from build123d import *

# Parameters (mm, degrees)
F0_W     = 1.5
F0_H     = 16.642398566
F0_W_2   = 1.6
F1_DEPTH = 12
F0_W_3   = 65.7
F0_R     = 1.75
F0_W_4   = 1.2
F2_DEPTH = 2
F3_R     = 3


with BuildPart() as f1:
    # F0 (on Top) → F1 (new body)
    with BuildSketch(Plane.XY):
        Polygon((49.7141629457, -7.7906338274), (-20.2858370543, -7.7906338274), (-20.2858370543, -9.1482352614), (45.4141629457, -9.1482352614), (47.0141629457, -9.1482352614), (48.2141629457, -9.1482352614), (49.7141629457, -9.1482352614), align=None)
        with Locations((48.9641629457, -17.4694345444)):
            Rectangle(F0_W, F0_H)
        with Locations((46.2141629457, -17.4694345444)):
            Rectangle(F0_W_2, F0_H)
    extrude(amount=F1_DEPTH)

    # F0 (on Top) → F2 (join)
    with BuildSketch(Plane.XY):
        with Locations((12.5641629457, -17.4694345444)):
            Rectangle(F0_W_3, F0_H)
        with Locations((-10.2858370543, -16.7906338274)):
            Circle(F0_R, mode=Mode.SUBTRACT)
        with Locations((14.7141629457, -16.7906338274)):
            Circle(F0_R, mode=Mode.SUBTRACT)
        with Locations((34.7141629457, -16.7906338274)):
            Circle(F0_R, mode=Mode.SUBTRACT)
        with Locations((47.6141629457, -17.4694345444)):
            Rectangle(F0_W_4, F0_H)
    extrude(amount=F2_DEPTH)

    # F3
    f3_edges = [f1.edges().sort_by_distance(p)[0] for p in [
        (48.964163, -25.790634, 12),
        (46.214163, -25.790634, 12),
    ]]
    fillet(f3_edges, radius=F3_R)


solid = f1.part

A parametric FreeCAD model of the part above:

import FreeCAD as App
import Part
import Sketcher
from FreeCAD import Vector


def edges_at(feature, points):
    """Names of the edges that pass closest to the given points."""
    edges = feature.Shape.Edges
    near = lambda p: min(range(len(edges)), key=lambda i: edges[i].distToShape(Part.Vertex(*p))[0])
    return sorted({f"Edge{near(p) + 1}" for p in points})


def add_polygon(sketch, points):
    """Adds a closed chain of lines whose ends are joined by coincident constraints."""
    first, n = sketch.GeometryCount, len(points)
    for a, b in zip(points, points[1:] + points[:1]):
        sketch.addGeometry(Part.LineSegment(App.Vector(*a, 0), App.Vector(*b, 0)), False)
    for i in range(n):
        sketch.addConstraint(Sketcher.Constraint("Coincident", first + i, 2, first + (i + 1) % n, 1))

doc = App.newDocument("Part")
body = doc.addObject("PartDesign::Body", "Body")

# Sketch on XY plane
sketch1 = body.newObject("Sketcher::SketchObject", "Sketch")
sketch1.AttachmentSupport = (doc.getObject("XY_Plane"), [""])
sketch1.MapMode = "FlatFace"
add_polygon(sketch1, [(49.714163, -7.790634), (-20.285837, -7.790634), (-20.285837, -9.148235), (45.414163, -9.148235), (45.414163, -25.790634), (47.014163, -25.790634), (47.014163, -9.148235), (48.214163, -9.148235), (48.214163, -25.790634), (49.714163, -25.790634)])  # lines 0-9
sketch1.addConstraint([
    Sketcher.Constraint("Horizontal", 0),
    Sketcher.Constraint("Vertical", 1),
    Sketcher.Constraint("Horizontal", 2),
    Sketcher.Constraint("Vertical", 3),
    Sketcher.Constraint("Horizontal", 4),
    Sketcher.Constraint("Vertical", 5),
    Sketcher.Constraint("Horizontal", 6),
    Sketcher.Constraint("Vertical", 7),
    Sketcher.Constraint("Horizontal", 8),
    Sketcher.Constraint("Vertical", 9),
    Sketcher.Constraint("Horizontal", 2, 2, 5, 2),
    Sketcher.Constraint("Horizontal", 4, 2, 7, 2),
    Sketcher.Constraint("DistanceX", 0, 2, 0, 1, 70.0),
    Sketcher.Constraint("DistanceY", 9, 1, 9, 2, 18.0),
    Sketcher.Constraint("DistanceX", 2, 1, 2, 2, 65.7),
    Sketcher.Constraint("DistanceX", 4, 1, 4, 2, 1.6),
    Sketcher.Constraint("DistanceX", 6, 1, 6, 2, 1.2),
    Sketcher.Constraint("DistanceY", 1, 2, 1, 1, 1.357601),
    Sketcher.Constraint("DistanceX", 0, 2, -1, 1, 20.285837),
    Sketcher.Constraint("DistanceY", 0, 2, -1, 1, 7.790634),
])
pad1 = body.newObject("PartDesign::Pad", "Pad")
pad1.Profile = sketch1
pad1.Length = 12

# Sketch on XY plane
sketch2 = body.newObject("Sketcher::SketchObject", "Sketch001")
sketch2.AttachmentSupport = (doc.getObject("XY_Plane"), [""])
sketch2.MapMode = "FlatFace"
add_polygon(sketch2, [(-20.285837, -9.148235), (-20.285837, -25.790634), (45.414163, -25.790634), (45.414163, -9.148235)])  # lines 0-3
sketch2.addGeometry(Part.Circle(Vector(-10.285837, -16.790634, 0), Vector(0, 0, 1), 1.75), False)  # 4
sketch2.addGeometry(Part.Circle(Vector(14.714163, -16.790634, 0), Vector(0, 0, 1), 1.75), False)  # 5
sketch2.addGeometry(Part.Circle(Vector(34.714163, -16.790634, 0), Vector(0, 0, 1), 1.75), False)  # 6
add_polygon(sketch2, [(47.014163, -9.148235), (47.014163, -25.790634), (48.214163, -25.790634), (48.214163, -9.148235)])  # lines 7-10
sketch2.addConstraint([
    Sketcher.Constraint("Vertical", 0),
    Sketcher.Constraint("Horizontal", 1),
    Sketcher.Constraint("Vertical", 2),
    Sketcher.Constraint("Horizontal", 3),
    Sketcher.Constraint("Vertical", 7),
    Sketcher.Constraint("Horizontal", 8),
    Sketcher.Constraint("Vertical", 9),
    Sketcher.Constraint("Horizontal", 10),
    Sketcher.Constraint("Equal", 4, 5),
    Sketcher.Constraint("Equal", 5, 6),
    Sketcher.Constraint("Horizontal", 4, 3, 5, 3),
    Sketcher.Constraint("Horizontal", 5, 3, 6, 3),
    Sketcher.Constraint("Horizontal", 1, 2, 7, 2),
    Sketcher.Constraint("Horizontal", 3, 2, 9, 2),
    Sketcher.Constraint("Diameter", 4, 3.5),
    Sketcher.Constraint("DistanceX", 1, 1, 1, 2, 65.7),
    Sketcher.Constraint("DistanceX", 8, 1, 8, 2, 1.2),
    Sketcher.Constraint("DistanceX", 4, 3, 5, 3, 25.0),
    Sketcher.Constraint("DistanceX", 5, 3, 6, 3, 20.0),
    Sketcher.Constraint("DistanceX", 0, 2, 4, 3, 10.0),
    Sketcher.Constraint("DistanceY", 0, 2, 4, 3, 9.0),
    Sketcher.Constraint("DistanceX", 1, 2, 7, 2, 1.6),
    Sketcher.Constraint("DistanceY", 0, 2, 0, 1, 16.642399),
    Sketcher.Constraint("DistanceX", 4, 3, -1, 1, 10.285837),
    Sketcher.Constraint("DistanceY", 4, 3, -1, 1, 16.790634),
])
pad2 = body.newObject("PartDesign::Pad", "Pad001")
pad2.Profile = sketch2
pad2.Length = 2
doc.recompute()

fillet = body.newObject("PartDesign::Fillet", "Fillet")
fillet.Base = (pad2, edges_at(pad2, [(48.964, -25.791, 12), (46.214, -25.791, 12)]))
fillet.Radius = 3

doc.recompute()
